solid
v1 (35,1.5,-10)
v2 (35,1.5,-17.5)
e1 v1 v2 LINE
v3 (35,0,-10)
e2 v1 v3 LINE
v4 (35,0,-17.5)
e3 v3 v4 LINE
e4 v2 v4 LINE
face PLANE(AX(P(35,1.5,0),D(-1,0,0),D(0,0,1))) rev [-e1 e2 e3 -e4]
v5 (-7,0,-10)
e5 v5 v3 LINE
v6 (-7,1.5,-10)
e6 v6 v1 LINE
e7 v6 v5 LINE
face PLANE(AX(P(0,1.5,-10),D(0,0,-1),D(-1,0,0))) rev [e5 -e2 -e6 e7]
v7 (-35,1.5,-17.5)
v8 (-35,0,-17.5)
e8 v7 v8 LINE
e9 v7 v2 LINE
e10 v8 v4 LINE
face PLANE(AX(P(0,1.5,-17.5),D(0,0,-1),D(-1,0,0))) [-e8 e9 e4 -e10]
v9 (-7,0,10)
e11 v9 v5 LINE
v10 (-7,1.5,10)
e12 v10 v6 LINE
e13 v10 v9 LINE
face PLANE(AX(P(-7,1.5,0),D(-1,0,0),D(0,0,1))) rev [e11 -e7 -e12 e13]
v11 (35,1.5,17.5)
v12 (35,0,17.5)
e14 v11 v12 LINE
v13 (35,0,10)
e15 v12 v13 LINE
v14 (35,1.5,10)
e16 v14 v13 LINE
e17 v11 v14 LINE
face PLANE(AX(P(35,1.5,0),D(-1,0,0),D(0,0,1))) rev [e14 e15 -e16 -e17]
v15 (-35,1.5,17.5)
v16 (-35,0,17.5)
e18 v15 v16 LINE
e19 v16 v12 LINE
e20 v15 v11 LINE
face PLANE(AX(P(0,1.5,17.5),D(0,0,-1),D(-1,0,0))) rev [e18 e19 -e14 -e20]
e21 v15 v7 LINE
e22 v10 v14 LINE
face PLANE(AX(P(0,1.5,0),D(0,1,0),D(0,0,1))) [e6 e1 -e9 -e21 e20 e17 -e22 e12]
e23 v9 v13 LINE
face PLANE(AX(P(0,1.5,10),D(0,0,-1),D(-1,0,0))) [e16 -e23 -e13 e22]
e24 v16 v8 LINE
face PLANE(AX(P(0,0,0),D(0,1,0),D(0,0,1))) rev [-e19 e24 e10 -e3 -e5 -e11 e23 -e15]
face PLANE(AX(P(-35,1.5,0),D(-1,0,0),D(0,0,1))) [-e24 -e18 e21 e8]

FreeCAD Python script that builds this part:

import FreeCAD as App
import Part
import Sketcher

V = App.Vector

doc = App.newDocument("Part")
body = doc.addObject("PartDesign::Body", "Body")

# Sketch on XZ plane
sketch1 = doc.addObject("Sketcher::SketchObject", "Sketch")
body.addObject(sketch1)
sketch1.AttachmentSupport = (doc.XZ_Plane, [""])
sketch1.MapMode = "FlatFace"
sketch1.addGeometry([
    Part.LineSegment(V(-35, -17.5, 0), V(-35, 17.5, 0)),  # 0
    Part.LineSegment(V(-35, 17.5, 0), V(35, 17.5, 0)),  # 1
    Part.LineSegment(V(35, 17.5, 0), V(35, 10, 0)),  # 2
    Part.LineSegment(V(35, 10, 0), V(-7, 10, 0)),  # 3
    Part.LineSegment(V(-7, 10, 0), V(-7, -10, 0)),  # 4
    Part.LineSegment(V(-7, -10, 0), V(35, -10, 0)),  # 5
    Part.LineSegment(V(35, -10, 0), V(35, -17.5, 0)),  # 6
    Part.LineSegment(V(35, -17.5, 0), V(-35, -17.5, 0)),  # 7
], False)
sketch1.addConstraint([
    Sketcher.Constraint("Coincident", 0, 2, 1, 1),
    Sketcher.Constraint("Coincident", 1, 2, 2, 1),
    Sketcher.Constraint("Coincident", 2, 2, 3, 1),
    Sketcher.Constraint("Coincident", 3, 2, 4, 1),
    Sketcher.Constraint("Coincident", 4, 2, 5, 1),
    Sketcher.Constraint("Coincident", 5, 2, 6, 1),
    Sketcher.Constraint("Coincident", 6, 2, 7, 1),
    Sketcher.Constraint("Coincident", 7, 2, 0, 1),
    Sketcher.Constraint("Vertical", 0),
    Sketcher.Constraint("Horizontal", 1),
    Sketcher.Constraint("Vertical", 2),
    Sketcher.Constraint("Horizontal", 3),
    Sketcher.Constraint("Vertical", 4),
    Sketcher.Constraint("Horizontal", 5),
    Sketcher.Constraint("Vertical", 6),
    Sketcher.Constraint("Horizontal", 7),
    Sketcher.Constraint("Symmetric", 0, 2, 6, 2, -1, 1),
    Sketcher.Constraint("Symmetric", 2, 2, 5, 2, -1),
    Sketcher.Constraint("DistanceX", 1, 1, 1, 2, 70.0),
    Sketcher.Constraint("DistanceX", 3, 2, 3, 1, 42.0),
    Sketcher.Constraint("DistanceY", 0, 1, 0, 2, 35.0),
    Sketcher.Constraint("DistanceY", 4, 2, 4, 1, 20.0),
])
pad1 = doc.addObject("PartDesign::Pad", "Pad")
body.addObject(pad1)
pad1.Profile = sketch1
pad1.Length = 1.5
pad1.Reversed = True

doc.recompute()
